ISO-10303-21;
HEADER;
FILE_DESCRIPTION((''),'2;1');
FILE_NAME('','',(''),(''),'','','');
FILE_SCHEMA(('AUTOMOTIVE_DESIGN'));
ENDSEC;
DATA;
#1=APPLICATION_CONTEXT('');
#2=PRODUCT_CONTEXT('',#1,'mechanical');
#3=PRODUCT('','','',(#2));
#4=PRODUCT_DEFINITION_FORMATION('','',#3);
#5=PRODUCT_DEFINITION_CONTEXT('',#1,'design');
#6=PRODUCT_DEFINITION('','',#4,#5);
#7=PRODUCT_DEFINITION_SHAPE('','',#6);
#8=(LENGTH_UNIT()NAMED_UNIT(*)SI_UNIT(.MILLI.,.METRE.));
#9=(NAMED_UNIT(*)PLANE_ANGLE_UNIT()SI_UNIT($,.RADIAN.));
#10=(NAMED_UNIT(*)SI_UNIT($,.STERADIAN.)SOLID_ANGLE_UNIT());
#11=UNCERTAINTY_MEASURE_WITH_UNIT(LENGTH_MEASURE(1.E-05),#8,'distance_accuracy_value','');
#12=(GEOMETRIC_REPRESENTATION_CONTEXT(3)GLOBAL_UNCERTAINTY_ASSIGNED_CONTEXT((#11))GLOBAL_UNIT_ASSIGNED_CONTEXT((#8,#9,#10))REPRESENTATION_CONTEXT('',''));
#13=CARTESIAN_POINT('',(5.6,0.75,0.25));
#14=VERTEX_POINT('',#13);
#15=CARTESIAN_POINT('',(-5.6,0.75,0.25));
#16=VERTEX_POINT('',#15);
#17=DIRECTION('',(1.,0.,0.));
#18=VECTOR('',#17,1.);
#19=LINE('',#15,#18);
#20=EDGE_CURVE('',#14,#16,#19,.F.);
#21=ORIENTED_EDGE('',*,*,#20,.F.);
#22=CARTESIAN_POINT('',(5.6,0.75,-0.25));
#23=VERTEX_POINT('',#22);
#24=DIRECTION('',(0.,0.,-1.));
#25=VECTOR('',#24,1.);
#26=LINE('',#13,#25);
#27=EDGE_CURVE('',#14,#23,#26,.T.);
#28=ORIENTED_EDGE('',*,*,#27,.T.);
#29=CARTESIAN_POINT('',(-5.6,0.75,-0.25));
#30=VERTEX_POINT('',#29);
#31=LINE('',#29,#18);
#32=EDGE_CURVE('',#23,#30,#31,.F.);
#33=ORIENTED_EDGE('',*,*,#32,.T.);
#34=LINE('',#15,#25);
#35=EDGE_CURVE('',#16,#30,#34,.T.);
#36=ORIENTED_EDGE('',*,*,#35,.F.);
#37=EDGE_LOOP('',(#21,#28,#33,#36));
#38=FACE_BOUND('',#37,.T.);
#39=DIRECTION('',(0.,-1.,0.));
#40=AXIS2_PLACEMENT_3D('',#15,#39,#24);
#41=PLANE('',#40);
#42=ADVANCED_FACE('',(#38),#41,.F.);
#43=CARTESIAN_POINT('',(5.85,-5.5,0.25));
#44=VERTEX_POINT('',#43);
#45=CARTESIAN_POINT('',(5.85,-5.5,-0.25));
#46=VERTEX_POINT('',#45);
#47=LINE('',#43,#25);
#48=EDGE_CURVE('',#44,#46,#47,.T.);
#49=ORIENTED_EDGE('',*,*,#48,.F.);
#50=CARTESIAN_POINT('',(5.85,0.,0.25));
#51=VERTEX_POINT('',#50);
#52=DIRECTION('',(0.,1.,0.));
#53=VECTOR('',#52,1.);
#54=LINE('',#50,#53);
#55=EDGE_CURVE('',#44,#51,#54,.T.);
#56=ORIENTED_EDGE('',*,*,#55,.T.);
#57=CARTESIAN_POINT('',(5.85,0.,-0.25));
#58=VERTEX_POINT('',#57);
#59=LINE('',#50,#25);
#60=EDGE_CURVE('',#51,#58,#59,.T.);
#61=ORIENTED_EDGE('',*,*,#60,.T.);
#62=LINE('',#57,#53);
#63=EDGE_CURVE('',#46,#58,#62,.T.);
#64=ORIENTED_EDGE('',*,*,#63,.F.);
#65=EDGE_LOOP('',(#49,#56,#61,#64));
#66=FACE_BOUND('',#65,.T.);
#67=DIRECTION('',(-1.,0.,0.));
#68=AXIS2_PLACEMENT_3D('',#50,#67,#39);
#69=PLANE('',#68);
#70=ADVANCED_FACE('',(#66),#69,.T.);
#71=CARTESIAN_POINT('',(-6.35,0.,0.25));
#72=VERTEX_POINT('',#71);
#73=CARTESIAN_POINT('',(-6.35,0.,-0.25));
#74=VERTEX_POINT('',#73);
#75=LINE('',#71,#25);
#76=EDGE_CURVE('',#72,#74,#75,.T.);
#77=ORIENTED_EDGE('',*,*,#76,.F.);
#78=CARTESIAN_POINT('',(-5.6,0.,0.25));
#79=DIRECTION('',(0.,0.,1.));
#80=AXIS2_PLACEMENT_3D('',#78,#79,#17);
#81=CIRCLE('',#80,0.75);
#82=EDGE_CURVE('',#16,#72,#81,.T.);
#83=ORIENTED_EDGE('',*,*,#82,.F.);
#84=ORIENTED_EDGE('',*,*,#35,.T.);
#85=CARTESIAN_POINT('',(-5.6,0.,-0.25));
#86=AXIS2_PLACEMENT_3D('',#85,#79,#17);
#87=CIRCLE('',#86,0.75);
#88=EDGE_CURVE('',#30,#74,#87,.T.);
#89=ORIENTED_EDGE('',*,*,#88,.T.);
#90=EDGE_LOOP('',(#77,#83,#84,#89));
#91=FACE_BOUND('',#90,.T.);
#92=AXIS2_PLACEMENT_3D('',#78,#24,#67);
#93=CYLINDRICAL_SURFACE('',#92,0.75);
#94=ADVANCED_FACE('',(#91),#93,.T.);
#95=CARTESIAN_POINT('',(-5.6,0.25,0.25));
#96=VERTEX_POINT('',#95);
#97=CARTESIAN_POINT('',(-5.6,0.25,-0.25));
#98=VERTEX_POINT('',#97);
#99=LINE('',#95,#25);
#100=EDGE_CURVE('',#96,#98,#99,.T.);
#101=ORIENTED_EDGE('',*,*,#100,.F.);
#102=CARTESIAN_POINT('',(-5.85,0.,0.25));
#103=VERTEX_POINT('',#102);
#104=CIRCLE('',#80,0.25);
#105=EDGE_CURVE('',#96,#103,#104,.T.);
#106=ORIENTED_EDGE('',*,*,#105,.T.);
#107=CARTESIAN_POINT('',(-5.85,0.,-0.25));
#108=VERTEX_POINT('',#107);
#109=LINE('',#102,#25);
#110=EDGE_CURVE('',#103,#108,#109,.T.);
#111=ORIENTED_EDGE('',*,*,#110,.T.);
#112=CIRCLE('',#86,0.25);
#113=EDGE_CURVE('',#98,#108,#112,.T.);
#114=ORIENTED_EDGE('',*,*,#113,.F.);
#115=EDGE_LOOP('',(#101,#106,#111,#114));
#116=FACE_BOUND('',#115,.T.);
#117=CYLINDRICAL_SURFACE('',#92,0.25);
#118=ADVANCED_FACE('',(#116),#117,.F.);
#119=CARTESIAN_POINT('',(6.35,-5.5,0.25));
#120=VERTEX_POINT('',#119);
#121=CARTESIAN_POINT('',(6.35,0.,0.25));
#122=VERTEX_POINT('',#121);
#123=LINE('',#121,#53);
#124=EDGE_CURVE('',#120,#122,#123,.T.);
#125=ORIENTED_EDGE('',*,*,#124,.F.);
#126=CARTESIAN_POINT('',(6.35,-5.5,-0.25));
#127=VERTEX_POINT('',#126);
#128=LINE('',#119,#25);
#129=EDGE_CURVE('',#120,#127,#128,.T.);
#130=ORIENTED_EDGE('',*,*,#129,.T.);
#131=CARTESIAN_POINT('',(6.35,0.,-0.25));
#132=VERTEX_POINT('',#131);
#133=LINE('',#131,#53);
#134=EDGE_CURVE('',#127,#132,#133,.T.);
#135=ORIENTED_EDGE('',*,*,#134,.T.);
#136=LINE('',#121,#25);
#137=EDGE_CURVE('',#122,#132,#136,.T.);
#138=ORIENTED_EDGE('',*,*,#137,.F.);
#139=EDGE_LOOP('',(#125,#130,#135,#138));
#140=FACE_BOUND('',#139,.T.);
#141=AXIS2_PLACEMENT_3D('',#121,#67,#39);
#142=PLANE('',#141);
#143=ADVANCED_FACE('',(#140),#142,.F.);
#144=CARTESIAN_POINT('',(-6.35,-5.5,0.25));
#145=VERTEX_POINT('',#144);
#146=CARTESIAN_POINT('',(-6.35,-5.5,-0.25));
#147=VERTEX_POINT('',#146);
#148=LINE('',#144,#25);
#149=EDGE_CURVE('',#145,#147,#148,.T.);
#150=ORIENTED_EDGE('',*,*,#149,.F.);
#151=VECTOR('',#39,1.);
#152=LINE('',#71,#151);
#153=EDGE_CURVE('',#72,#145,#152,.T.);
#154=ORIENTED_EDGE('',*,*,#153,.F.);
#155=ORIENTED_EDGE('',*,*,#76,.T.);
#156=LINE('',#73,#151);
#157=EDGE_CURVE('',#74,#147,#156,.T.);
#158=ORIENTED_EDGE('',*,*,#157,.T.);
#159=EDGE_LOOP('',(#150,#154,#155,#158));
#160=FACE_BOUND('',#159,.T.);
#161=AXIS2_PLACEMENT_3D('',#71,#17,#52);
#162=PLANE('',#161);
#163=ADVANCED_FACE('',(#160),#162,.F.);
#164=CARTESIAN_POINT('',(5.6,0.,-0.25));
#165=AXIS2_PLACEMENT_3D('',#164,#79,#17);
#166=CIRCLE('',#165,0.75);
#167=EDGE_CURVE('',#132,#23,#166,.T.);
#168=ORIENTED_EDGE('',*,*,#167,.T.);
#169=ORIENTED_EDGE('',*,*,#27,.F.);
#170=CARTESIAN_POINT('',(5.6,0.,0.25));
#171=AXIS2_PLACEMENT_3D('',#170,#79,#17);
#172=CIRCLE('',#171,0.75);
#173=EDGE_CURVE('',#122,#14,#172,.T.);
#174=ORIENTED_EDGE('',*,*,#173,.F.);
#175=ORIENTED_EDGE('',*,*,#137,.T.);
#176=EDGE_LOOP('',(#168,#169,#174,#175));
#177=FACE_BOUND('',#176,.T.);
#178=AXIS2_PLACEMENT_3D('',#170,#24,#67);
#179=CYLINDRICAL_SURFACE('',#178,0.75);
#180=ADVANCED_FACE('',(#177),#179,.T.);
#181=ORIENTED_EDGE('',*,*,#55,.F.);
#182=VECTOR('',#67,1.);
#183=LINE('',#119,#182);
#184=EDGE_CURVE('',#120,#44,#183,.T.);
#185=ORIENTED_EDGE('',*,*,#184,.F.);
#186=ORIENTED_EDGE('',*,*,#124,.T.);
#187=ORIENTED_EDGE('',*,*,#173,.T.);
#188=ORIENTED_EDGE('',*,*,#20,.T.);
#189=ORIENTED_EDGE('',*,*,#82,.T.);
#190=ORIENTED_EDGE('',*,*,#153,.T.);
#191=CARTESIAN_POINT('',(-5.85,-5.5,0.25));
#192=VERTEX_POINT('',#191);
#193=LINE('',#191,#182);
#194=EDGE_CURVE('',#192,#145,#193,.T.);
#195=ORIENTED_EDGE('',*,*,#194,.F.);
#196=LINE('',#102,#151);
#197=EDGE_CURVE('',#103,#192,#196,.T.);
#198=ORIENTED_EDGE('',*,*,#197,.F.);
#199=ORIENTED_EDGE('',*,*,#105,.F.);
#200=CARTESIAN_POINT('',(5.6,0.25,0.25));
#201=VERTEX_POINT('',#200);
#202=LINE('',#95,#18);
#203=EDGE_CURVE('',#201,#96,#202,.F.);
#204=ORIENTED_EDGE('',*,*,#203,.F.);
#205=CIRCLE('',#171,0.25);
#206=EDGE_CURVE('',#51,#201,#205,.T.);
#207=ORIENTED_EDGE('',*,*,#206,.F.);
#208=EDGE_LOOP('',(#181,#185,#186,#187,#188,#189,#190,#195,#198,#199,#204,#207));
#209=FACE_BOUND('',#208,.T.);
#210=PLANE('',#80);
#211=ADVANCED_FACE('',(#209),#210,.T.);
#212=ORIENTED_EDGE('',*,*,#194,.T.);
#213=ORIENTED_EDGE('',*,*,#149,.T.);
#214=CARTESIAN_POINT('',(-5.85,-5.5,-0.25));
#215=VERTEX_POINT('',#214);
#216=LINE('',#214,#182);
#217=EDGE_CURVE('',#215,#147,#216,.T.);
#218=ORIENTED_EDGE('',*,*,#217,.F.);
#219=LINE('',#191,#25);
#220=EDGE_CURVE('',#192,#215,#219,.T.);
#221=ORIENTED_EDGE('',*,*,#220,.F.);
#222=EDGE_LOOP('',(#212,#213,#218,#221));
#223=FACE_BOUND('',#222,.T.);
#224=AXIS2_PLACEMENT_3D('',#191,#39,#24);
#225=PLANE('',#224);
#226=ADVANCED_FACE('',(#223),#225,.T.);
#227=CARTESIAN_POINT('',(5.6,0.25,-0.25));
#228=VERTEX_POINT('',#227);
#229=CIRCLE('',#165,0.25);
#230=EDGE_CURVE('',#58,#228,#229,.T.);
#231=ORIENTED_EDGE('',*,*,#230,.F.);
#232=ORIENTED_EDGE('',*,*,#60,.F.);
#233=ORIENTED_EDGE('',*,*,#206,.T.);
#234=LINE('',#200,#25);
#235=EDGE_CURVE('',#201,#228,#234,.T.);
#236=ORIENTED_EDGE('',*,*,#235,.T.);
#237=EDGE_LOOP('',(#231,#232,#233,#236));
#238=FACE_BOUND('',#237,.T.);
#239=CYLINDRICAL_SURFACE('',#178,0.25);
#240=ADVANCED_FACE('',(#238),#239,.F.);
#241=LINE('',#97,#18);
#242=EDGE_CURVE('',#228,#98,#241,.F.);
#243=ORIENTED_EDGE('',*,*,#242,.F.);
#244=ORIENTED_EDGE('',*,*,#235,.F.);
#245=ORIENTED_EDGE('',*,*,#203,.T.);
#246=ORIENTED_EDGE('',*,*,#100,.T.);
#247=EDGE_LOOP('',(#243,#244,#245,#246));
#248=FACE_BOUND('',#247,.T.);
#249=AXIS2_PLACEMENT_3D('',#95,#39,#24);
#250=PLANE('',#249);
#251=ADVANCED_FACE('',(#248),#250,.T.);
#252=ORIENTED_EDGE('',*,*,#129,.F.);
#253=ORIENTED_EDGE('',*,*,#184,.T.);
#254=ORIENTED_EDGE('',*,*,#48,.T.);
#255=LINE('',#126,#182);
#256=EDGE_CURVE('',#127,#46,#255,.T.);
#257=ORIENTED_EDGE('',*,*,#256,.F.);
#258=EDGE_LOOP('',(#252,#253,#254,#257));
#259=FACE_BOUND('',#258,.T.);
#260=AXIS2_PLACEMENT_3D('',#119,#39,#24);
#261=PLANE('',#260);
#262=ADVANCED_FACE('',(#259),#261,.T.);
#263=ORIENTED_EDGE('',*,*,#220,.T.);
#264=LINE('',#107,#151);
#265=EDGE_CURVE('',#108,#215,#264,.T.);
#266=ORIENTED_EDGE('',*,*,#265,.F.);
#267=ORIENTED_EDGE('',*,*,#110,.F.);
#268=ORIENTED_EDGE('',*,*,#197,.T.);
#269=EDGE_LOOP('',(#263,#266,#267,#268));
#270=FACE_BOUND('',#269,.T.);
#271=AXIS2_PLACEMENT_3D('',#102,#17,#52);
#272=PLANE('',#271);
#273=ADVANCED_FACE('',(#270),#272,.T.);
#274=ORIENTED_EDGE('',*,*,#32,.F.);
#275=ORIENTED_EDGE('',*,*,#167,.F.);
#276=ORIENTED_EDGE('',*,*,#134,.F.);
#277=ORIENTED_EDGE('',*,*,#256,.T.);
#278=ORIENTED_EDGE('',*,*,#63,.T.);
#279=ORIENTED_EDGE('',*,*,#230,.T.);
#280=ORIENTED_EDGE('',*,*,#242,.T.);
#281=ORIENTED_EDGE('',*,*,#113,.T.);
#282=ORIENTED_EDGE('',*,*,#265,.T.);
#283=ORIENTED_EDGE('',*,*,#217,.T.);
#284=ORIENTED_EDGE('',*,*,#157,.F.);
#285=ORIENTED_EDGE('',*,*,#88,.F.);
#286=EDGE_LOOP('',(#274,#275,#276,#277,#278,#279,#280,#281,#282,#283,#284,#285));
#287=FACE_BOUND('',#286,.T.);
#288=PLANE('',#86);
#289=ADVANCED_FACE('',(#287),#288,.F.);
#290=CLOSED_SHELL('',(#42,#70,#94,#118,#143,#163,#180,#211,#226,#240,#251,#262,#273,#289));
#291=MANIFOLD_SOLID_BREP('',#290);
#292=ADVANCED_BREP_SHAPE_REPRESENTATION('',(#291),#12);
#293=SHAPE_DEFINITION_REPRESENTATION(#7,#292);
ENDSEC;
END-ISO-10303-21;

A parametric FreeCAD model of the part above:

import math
import FreeCAD as App
import Part
import Sketcher

doc = App.newDocument("Part")
body = doc.addObject("PartDesign::Body", "Body")

sketch1 = body.newObject("Sketcher::SketchObject", "Sketch")
sketch1.AttachmentSupport = (doc.getObject("XY_Plane"), [""])
sketch1.MapMode = "FlatFace"
sketch1.addGeometry([
    Part.LineSegment(App.Vector(-5.85, -5.5, 0), App.Vector(-5.85, 0, 0)),
    Part.ArcOfCircle(Part.Circle(App.Vector(-5.6, 0, 0), App.Vector(0, 0, 1), 0.25), math.radians(90), math.radians(180)),
    Part.LineSegment(App.Vector(-5.6, 0.25, 0), App.Vector(5.6, 0.25, 0)),
    Part.ArcOfCircle(Part.Circle(App.Vector(5.6, 0, 0), App.Vector(0, 0, 1), 0.25), math.radians(0), math.radians(90)),
    Part.LineSegment(App.Vector(5.85, 0, 0), App.Vector(5.85, -5.5, 0)),
    Part.LineSegment(App.Vector(5.85, -5.5, 0), App.Vector(6.35, -5.5, 0)),
    Part.LineSegment(App.Vector(6.35, -5.5, 0), App.Vector(6.35, 0, 0)),
    Part.ArcOfCircle(Part.Circle(App.Vector(5.6, 0, 0), App.Vector(0, 0, 1), 0.75), math.radians(0), math.radians(90)),
    Part.LineSegment(App.Vector(5.6, 0.75, 0), App.Vector(-5.6, 0.75, 0)),
    Part.ArcOfCircle(Part.Circle(App.Vector(-5.6, 0, 0), App.Vector(0, 0, 1), 0.75), math.radians(90), math.radians(180)),
    Part.LineSegment(App.Vector(-6.35, 0, 0), App.Vector(-6.35, -5.5, 0)),
    Part.LineSegment(App.Vector(-6.35, -5.5, 0), App.Vector(-5.85, -5.5, 0)),
], False)
sketch1.addConstraint([
    Sketcher.Constraint("Tangent", 0, 2, 1, 2),
    Sketcher.Constraint("Tangent", 1, 1, 2, 1),
    Sketcher.Constraint("Tangent", 2, 2, 3, 2),
    Sketcher.Constraint("Tangent", 3, 1, 4, 1),
    Sketcher.Constraint("Coincident", 4, 2, 5, 1),
    Sketcher.Constraint("Coincident", 5, 2, 6, 1),
    Sketcher.Constraint("Tangent", 6, 2, 7, 1),
    Sketcher.Constraint("Tangent", 7, 2, 8, 1),
    Sketcher.Constraint("Tangent", 8, 2, 9, 1),
    Sketcher.Constraint("Tangent", 9, 2, 10, 1),
    Sketcher.Constraint("Coincident", 10, 2, 11, 1),
    Sketcher.Constraint("Coincident", 11, 2, 0, 1),
    Sketcher.Constraint("Vertical", 0),
    Sketcher.Constraint("Horizontal", 2),
    Sketcher.Constraint("Vertical", 4),
    Sketcher.Constraint("Horizontal", 5),
    Sketcher.Constraint("Vertical", 6),
    Sketcher.Constraint("Horizontal", 8),
    Sketcher.Constraint("Vertical", 10),
    Sketcher.Constraint("Horizontal", 11),
    Sketcher.Constraint("Coincident", 7, 3, 3, 3),
    Sketcher.Constraint("Coincident", 9, 3, 1, 3),
    Sketcher.Constraint("Equal", 1, 3),
    Sketcher.Constraint("Symmetric", 1, 3, 3, 3, -1, 1),
    Sketcher.Constraint("Horizontal", 5, 2, 10, 2),
    Sketcher.Constraint("Radius", 1, 0.25),
    Sketcher.Constraint("Radius", 7, 0.75),
    Sketcher.Constraint("DistanceX", 2, 1, 2, 2, 11.2),
    Sketcher.Constraint("DistanceY", 0, 1, 0, 2, 5.5),
])
pad1 = body.newObject("PartDesign::Pad", "Pad")
pad1.Profile = sketch1
pad1.Length = 0.5
pad1.Midplane = True

doc.recompute()
